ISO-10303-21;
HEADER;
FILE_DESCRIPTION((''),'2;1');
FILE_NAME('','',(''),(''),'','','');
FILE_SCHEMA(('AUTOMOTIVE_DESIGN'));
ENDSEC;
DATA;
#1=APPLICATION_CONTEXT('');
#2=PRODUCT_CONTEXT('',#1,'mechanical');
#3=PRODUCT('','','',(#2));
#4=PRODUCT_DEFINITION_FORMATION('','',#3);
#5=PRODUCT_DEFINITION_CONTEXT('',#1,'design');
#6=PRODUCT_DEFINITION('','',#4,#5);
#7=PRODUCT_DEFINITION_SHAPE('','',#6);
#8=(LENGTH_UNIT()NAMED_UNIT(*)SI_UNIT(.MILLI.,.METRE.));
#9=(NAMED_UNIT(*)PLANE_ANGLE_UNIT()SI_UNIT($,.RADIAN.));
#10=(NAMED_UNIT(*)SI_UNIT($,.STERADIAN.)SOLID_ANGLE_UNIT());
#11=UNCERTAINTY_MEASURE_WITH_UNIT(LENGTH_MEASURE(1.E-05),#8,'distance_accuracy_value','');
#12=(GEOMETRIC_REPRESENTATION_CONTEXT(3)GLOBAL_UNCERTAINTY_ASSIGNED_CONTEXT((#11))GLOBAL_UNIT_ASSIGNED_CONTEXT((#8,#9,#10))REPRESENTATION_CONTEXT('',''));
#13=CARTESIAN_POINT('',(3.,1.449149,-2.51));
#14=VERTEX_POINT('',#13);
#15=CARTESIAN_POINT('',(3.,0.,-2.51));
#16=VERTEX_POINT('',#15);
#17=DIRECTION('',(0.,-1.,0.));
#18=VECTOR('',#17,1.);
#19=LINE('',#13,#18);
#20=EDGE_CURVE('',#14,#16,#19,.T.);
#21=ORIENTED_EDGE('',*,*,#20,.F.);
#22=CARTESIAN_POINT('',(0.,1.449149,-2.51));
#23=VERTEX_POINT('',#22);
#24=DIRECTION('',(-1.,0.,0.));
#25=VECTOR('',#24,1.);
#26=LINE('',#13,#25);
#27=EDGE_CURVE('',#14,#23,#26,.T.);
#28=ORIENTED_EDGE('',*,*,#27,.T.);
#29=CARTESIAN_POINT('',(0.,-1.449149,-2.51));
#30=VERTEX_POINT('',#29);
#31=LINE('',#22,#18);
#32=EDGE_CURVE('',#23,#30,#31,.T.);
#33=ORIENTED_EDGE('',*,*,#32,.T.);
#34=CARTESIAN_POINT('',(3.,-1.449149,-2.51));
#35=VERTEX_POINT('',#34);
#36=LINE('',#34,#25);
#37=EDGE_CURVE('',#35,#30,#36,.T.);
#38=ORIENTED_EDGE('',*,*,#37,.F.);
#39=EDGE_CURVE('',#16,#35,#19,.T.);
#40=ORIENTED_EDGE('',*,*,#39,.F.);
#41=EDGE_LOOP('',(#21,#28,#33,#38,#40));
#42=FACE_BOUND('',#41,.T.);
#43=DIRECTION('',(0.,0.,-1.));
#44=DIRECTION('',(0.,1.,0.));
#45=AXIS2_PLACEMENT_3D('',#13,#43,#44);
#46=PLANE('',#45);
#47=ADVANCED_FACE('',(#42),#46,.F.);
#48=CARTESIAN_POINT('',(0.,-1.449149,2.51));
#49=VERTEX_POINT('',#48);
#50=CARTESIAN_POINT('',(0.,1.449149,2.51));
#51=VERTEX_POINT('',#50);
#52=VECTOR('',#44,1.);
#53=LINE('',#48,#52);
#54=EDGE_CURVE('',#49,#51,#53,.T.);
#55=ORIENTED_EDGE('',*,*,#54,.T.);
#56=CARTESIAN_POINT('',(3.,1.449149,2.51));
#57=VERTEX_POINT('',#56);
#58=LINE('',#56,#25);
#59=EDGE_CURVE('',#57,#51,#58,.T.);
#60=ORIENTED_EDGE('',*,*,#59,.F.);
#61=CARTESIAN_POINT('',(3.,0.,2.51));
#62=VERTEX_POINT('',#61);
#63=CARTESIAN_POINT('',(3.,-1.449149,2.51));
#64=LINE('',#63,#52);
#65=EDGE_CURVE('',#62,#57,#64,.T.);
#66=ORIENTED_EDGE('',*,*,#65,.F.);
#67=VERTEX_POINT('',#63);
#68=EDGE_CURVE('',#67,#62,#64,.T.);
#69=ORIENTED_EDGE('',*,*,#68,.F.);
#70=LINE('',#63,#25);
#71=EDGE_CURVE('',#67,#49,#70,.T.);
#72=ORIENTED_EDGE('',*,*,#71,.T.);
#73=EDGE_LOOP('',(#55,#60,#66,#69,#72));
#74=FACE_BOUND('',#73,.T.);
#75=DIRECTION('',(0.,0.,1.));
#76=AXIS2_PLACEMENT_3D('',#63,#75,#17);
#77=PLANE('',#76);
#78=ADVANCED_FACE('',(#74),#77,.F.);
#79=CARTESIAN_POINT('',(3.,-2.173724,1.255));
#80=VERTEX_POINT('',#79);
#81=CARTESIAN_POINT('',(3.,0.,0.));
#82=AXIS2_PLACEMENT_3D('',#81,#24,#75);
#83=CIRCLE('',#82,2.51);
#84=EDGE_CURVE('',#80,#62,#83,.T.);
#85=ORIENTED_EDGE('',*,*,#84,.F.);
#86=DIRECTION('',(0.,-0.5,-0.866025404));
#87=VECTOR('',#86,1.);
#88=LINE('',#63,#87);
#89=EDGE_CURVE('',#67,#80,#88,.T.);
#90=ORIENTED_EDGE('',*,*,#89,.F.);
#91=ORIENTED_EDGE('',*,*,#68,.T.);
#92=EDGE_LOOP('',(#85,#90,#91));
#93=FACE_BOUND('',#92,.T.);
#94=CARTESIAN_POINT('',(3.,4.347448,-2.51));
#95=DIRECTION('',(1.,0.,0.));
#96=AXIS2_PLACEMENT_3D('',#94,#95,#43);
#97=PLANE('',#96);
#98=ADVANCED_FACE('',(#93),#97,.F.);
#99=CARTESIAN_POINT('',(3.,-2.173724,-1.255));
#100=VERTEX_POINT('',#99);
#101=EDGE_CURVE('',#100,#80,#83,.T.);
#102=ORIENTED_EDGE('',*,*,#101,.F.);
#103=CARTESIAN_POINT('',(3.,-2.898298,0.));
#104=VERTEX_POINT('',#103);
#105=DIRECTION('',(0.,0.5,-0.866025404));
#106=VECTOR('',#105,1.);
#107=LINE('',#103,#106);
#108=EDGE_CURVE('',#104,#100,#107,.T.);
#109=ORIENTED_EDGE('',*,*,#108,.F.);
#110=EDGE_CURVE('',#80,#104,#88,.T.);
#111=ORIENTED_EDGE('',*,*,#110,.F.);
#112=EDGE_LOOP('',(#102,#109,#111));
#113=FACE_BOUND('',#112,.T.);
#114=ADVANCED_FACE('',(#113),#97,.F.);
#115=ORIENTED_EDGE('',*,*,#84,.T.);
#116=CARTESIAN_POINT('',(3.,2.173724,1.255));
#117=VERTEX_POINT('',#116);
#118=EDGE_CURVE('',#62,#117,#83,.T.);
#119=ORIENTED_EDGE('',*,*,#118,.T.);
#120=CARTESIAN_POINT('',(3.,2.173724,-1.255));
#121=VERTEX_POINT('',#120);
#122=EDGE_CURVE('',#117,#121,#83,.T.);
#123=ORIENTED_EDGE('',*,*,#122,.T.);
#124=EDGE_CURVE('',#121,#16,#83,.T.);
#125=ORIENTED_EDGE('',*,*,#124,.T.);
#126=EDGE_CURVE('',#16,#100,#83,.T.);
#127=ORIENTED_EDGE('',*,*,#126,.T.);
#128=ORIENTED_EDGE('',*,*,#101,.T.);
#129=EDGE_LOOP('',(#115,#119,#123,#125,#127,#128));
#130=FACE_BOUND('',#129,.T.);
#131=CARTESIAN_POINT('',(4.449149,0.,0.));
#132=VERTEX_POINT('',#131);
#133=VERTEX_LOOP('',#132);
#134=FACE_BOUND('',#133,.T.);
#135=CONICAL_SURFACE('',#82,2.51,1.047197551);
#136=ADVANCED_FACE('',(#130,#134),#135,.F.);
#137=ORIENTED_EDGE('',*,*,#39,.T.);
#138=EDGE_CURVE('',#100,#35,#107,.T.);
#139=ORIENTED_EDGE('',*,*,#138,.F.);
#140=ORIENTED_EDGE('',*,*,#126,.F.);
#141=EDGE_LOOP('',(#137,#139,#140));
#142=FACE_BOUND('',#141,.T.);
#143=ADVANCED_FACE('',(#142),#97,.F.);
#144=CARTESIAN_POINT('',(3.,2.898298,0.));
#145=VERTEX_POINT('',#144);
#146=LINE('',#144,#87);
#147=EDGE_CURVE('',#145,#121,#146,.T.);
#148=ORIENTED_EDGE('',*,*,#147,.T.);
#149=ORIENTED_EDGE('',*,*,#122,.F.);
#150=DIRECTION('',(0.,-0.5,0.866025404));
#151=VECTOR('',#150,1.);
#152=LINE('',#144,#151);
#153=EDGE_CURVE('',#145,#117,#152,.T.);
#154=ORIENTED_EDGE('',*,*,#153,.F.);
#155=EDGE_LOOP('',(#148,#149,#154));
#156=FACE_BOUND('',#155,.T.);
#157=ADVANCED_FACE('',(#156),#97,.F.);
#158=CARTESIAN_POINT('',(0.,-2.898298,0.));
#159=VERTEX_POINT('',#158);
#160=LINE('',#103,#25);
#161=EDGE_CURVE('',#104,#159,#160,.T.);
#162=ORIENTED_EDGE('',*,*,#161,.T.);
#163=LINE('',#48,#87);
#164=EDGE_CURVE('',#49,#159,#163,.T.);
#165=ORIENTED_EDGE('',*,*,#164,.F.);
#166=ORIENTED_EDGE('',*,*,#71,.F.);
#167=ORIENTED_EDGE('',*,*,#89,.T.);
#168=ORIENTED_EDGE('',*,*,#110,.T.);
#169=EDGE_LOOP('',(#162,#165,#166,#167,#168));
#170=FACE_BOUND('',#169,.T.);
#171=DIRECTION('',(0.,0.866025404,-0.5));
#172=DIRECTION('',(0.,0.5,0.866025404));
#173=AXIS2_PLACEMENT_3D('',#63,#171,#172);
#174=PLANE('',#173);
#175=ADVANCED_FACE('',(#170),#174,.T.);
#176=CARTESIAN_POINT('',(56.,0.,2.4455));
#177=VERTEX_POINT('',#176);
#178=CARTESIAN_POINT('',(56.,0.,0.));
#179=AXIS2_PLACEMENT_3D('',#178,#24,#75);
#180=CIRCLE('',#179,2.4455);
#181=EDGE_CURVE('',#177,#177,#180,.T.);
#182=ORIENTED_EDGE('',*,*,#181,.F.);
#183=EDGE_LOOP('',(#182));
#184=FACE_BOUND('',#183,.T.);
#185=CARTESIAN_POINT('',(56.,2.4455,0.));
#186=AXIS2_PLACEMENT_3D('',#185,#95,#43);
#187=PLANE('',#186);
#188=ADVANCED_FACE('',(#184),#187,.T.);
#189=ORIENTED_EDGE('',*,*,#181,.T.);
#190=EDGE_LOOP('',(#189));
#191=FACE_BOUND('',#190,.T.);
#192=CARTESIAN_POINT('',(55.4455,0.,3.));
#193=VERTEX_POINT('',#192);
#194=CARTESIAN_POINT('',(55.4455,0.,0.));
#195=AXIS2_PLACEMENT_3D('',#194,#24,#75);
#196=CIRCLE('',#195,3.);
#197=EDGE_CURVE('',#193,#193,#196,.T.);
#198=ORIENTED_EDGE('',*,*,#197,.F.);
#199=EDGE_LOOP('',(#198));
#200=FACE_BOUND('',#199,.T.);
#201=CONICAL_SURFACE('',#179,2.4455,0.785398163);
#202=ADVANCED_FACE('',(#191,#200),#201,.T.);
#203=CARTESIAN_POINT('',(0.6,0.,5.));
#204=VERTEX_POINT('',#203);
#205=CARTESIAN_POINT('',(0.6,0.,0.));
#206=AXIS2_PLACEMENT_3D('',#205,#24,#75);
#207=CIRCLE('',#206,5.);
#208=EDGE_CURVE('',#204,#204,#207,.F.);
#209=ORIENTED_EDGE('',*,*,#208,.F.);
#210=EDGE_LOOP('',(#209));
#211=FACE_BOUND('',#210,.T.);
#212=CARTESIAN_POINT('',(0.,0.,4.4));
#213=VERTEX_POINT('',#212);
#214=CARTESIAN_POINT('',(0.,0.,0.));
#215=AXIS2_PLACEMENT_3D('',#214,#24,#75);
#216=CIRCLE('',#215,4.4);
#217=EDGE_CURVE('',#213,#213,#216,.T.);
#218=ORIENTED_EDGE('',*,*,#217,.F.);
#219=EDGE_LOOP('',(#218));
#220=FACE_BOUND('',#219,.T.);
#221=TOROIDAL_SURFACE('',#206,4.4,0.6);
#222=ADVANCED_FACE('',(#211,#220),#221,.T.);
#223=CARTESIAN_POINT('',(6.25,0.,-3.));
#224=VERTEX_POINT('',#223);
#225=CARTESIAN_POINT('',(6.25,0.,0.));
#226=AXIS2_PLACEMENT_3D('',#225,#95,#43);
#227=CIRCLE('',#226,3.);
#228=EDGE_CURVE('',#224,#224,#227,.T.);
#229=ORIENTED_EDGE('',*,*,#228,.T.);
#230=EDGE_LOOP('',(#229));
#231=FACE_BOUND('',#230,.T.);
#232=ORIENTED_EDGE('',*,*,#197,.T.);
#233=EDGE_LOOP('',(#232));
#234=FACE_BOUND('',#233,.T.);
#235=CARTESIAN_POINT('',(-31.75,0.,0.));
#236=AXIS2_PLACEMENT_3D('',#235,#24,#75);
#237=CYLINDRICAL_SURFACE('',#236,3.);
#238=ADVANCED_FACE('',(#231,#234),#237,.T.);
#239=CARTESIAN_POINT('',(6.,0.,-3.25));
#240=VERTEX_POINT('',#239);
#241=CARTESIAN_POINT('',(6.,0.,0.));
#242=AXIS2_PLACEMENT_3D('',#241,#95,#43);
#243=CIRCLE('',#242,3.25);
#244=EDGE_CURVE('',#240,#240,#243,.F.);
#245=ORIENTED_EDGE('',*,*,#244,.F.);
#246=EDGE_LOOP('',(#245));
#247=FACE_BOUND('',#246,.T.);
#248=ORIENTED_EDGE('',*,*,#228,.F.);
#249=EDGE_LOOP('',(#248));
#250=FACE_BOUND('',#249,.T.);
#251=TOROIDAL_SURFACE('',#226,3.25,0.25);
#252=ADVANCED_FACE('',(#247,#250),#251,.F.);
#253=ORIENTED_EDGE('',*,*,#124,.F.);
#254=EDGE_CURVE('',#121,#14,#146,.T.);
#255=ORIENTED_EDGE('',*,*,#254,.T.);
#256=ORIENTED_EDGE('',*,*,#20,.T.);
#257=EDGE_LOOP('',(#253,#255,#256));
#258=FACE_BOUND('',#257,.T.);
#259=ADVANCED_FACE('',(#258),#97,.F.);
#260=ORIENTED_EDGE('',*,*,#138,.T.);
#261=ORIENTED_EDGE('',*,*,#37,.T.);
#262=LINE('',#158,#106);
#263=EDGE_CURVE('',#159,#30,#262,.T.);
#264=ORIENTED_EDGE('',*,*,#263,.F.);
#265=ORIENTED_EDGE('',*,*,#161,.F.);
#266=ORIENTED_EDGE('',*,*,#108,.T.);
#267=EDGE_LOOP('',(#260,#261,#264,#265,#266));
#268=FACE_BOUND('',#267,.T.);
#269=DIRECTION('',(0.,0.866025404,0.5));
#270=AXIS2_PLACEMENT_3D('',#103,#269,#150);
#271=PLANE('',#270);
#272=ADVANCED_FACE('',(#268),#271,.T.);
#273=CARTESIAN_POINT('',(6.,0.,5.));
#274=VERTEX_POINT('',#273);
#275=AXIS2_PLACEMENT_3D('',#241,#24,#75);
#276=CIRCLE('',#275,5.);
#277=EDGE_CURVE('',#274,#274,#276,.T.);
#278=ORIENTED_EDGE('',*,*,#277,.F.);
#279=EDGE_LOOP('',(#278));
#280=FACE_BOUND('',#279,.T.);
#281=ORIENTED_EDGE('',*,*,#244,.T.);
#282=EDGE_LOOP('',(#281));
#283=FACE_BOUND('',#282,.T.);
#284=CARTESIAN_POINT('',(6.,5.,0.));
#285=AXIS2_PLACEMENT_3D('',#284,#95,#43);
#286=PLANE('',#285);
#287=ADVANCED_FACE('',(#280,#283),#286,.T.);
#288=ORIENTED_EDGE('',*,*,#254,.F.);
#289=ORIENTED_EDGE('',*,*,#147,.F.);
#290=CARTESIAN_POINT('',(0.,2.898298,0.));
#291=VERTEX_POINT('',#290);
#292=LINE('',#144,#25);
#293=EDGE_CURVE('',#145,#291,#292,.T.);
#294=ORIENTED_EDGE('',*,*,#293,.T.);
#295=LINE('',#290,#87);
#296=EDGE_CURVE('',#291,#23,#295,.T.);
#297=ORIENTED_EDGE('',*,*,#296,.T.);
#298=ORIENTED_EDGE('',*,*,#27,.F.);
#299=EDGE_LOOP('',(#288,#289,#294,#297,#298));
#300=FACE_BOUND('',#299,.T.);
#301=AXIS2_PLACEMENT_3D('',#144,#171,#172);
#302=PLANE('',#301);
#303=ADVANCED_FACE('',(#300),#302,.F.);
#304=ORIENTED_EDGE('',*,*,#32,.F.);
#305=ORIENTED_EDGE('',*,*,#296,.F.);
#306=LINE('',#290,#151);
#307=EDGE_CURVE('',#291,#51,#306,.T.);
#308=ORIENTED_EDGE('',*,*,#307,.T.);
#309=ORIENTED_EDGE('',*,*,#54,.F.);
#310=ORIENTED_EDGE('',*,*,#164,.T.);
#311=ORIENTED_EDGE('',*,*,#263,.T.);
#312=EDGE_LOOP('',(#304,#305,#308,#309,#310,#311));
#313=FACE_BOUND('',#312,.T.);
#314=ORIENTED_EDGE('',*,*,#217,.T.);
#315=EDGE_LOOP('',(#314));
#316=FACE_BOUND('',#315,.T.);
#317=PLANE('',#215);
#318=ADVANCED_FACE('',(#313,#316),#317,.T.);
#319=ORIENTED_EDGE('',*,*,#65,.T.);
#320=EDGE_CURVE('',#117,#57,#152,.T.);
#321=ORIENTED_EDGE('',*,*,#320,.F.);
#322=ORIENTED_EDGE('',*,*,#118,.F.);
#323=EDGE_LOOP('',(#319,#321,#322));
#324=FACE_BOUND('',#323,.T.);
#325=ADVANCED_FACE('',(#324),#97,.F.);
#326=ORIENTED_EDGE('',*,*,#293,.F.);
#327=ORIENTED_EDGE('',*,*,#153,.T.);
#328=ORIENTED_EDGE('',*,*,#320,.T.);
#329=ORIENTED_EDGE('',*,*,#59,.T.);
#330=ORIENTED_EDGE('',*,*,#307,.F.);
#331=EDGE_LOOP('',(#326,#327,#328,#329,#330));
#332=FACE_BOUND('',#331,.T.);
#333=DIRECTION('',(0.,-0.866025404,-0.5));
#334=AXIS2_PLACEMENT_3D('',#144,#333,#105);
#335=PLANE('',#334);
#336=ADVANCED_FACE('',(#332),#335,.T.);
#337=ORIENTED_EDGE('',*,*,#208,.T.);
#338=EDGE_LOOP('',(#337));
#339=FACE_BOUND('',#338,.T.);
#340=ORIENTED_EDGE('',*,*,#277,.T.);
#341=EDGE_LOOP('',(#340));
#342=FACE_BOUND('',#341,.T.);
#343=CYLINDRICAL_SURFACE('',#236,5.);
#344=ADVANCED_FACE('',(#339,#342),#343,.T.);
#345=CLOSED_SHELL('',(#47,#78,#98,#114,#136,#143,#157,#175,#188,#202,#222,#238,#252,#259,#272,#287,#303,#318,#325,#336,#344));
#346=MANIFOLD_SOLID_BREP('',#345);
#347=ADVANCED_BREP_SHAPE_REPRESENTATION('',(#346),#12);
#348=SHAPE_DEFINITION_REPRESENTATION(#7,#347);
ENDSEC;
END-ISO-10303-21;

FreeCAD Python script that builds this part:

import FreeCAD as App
import Part
import Sketcher
Q = App.Units.Quantity


def edges_at(feature, points):
    """Names of the edges that pass closest to the given points."""
    edges = feature.Shape.Edges
    near = lambda p: min(range(len(edges)), key=lambda i: edges[i].distToShape(Part.Vertex(*p))[0])
    return sorted({f"Edge{near(p) + 1}" for p in points})


def add_polygon(sketch, points):
    """Adds a closed chain of lines whose ends are joined by coincident constraints."""
    first, n = sketch.GeometryCount, len(points)
    for a, b in zip(points, points[1:] + points[:1]):
        sketch.addGeometry(Part.LineSegment(App.Vector(*a, 0), App.Vector(*b, 0)), False)
    for i in range(n):
        sketch.addConstraint(Sketcher.Constraint("Coincident", first + i, 2, first + (i + 1) % n, 1))

doc = App.newDocument("Part")
body = doc.addObject("PartDesign::Body", "Body")

# Sketch on XY plane
sketch1 = body.newObject("Sketcher::SketchObject", "Sketch")
sketch1.AttachmentSupport = (doc.getObject("XY_Plane"), [""])
sketch1.MapMode = "FlatFace"
add_polygon(sketch1, [(0, 5), (0, 0), (56, 0), (56, 2.4455), (55.4455, 3), (6, 3), (6, 5)])  # lines 0-6
sketch1.addConstraint([
    Sketcher.Constraint("Vertical", 0),
    Sketcher.Constraint("Horizontal", 1),
    Sketcher.Constraint("Vertical", 2),
    Sketcher.Constraint("Horizontal", 4),
    Sketcher.Constraint("Vertical", 5),
    Sketcher.Constraint("Horizontal", 6),
    Sketcher.Constraint("Coincident", 0, 2, -1, 1),
    Sketcher.Constraint("DistanceX", 1, 1, 1, 2, 56.0),
    Sketcher.Constraint("DistanceX", 6, 2, 6, 1, 6.0),
    Sketcher.Constraint("DistanceY", 0, 2, 0, 1, 5.0),
    Sketcher.Constraint("DistanceY", 5, 1, 5, 2, 2.0),
    Sketcher.Constraint("Angle", 3, Q("135 deg")),
    Sketcher.Constraint("DistanceX", 4, 2, 4, 1, 49.4455),
])
revolution = body.newObject("PartDesign::Revolution", "Revolution")
revolution.Profile = sketch1
revolution.ReferenceAxis = (sketch1, ["H_Axis"])
revolution.Angle = 360
doc.recompute()

fillet = body.newObject("PartDesign::Fillet", "Fillet")
fillet.Base = (revolution, edges_at(revolution, [(6, -3, 0)]))
fillet.Radius = 0.25
doc.recompute()

fillet2 = body.newObject("PartDesign::Fillet", "Fillet001")
fillet2.Base = (fillet, edges_at(fillet, [(0, -5, 0)]))
fillet2.Radius = 0.6

# Sketch on XY plane
sketch2 = body.newObject("Sketcher::SketchObject", "Sketch001")
sketch2.AttachmentSupport = (doc.getObject("XY_Plane"), [""])
sketch2.MapMode = "FlatFace"
add_polygon(sketch2, [(3, 2.51), (0, 2.51), (0, 0), (4.449149, 0)])  # lines 0-3
sketch2.addConstraint([
    Sketcher.Constraint("Horizontal", 0),
    Sketcher.Constraint("Vertical", 1),
    Sketcher.Constraint("Horizontal", 2),
    Sketcher.Constraint("Coincident", 1, 2, -1, 1),
    Sketcher.Constraint("DistanceX", 0, 2, 0, 1, 3.0),
    Sketcher.Constraint("Angle", 3, Q("120 deg")),
    Sketcher.Constraint("DistanceY", 1, 2, 1, 1, 2.51),
])
groove = body.newObject("PartDesign::Groove", "Groove")
groove.Profile = sketch2
groove.ReferenceAxis = (sketch2, ["H_Axis"])
groove.Angle = 360

# Sketch on YZ plane
sketch3 = body.newObject("Sketcher::SketchObject", "Sketch002")
sketch3.AttachmentSupport = (doc.getObject("YZ_Plane"), [""])
sketch3.MapMode = "FlatFace"
add_polygon(sketch3, [(2.898298, 0), (1.449149, -2.51), (-1.449149, -2.51), (-2.898298, 0), (-1.449149, 2.51), (1.449149, 2.51)])  # lines 0-5
sketch3.addConstraint([
    Sketcher.Constraint("Horizontal", 1),
    Sketcher.Constraint("Horizontal", 4),
    Sketcher.Constraint("Symmetric", 0, 2, 3, 2, -1, 1),
    Sketcher.Constraint("Symmetric", 2, 2, 5, 2, -1, 1),
    Sketcher.Constraint("PointOnObject", 2, 2, -1),
    Sketcher.Constraint("Parallel", 2, 5),
    Sketcher.Constraint("Vertical", 1, 2, 3, 2),
    Sketcher.Constraint("Angle", 0, Q("-120 deg")),
    Sketcher.Constraint("DistanceY", 0, 2, -1, 1, 2.51),
    Sketcher.Constraint("DistanceX", 1, 2, 1, 1, 2.898298),
])
pocket1 = body.newObject("PartDesign::Pocket", "Pocket")
pocket1.Profile = sketch3
pocket1.Length = 3
pocket1.Reversed = True

doc.recompute()
